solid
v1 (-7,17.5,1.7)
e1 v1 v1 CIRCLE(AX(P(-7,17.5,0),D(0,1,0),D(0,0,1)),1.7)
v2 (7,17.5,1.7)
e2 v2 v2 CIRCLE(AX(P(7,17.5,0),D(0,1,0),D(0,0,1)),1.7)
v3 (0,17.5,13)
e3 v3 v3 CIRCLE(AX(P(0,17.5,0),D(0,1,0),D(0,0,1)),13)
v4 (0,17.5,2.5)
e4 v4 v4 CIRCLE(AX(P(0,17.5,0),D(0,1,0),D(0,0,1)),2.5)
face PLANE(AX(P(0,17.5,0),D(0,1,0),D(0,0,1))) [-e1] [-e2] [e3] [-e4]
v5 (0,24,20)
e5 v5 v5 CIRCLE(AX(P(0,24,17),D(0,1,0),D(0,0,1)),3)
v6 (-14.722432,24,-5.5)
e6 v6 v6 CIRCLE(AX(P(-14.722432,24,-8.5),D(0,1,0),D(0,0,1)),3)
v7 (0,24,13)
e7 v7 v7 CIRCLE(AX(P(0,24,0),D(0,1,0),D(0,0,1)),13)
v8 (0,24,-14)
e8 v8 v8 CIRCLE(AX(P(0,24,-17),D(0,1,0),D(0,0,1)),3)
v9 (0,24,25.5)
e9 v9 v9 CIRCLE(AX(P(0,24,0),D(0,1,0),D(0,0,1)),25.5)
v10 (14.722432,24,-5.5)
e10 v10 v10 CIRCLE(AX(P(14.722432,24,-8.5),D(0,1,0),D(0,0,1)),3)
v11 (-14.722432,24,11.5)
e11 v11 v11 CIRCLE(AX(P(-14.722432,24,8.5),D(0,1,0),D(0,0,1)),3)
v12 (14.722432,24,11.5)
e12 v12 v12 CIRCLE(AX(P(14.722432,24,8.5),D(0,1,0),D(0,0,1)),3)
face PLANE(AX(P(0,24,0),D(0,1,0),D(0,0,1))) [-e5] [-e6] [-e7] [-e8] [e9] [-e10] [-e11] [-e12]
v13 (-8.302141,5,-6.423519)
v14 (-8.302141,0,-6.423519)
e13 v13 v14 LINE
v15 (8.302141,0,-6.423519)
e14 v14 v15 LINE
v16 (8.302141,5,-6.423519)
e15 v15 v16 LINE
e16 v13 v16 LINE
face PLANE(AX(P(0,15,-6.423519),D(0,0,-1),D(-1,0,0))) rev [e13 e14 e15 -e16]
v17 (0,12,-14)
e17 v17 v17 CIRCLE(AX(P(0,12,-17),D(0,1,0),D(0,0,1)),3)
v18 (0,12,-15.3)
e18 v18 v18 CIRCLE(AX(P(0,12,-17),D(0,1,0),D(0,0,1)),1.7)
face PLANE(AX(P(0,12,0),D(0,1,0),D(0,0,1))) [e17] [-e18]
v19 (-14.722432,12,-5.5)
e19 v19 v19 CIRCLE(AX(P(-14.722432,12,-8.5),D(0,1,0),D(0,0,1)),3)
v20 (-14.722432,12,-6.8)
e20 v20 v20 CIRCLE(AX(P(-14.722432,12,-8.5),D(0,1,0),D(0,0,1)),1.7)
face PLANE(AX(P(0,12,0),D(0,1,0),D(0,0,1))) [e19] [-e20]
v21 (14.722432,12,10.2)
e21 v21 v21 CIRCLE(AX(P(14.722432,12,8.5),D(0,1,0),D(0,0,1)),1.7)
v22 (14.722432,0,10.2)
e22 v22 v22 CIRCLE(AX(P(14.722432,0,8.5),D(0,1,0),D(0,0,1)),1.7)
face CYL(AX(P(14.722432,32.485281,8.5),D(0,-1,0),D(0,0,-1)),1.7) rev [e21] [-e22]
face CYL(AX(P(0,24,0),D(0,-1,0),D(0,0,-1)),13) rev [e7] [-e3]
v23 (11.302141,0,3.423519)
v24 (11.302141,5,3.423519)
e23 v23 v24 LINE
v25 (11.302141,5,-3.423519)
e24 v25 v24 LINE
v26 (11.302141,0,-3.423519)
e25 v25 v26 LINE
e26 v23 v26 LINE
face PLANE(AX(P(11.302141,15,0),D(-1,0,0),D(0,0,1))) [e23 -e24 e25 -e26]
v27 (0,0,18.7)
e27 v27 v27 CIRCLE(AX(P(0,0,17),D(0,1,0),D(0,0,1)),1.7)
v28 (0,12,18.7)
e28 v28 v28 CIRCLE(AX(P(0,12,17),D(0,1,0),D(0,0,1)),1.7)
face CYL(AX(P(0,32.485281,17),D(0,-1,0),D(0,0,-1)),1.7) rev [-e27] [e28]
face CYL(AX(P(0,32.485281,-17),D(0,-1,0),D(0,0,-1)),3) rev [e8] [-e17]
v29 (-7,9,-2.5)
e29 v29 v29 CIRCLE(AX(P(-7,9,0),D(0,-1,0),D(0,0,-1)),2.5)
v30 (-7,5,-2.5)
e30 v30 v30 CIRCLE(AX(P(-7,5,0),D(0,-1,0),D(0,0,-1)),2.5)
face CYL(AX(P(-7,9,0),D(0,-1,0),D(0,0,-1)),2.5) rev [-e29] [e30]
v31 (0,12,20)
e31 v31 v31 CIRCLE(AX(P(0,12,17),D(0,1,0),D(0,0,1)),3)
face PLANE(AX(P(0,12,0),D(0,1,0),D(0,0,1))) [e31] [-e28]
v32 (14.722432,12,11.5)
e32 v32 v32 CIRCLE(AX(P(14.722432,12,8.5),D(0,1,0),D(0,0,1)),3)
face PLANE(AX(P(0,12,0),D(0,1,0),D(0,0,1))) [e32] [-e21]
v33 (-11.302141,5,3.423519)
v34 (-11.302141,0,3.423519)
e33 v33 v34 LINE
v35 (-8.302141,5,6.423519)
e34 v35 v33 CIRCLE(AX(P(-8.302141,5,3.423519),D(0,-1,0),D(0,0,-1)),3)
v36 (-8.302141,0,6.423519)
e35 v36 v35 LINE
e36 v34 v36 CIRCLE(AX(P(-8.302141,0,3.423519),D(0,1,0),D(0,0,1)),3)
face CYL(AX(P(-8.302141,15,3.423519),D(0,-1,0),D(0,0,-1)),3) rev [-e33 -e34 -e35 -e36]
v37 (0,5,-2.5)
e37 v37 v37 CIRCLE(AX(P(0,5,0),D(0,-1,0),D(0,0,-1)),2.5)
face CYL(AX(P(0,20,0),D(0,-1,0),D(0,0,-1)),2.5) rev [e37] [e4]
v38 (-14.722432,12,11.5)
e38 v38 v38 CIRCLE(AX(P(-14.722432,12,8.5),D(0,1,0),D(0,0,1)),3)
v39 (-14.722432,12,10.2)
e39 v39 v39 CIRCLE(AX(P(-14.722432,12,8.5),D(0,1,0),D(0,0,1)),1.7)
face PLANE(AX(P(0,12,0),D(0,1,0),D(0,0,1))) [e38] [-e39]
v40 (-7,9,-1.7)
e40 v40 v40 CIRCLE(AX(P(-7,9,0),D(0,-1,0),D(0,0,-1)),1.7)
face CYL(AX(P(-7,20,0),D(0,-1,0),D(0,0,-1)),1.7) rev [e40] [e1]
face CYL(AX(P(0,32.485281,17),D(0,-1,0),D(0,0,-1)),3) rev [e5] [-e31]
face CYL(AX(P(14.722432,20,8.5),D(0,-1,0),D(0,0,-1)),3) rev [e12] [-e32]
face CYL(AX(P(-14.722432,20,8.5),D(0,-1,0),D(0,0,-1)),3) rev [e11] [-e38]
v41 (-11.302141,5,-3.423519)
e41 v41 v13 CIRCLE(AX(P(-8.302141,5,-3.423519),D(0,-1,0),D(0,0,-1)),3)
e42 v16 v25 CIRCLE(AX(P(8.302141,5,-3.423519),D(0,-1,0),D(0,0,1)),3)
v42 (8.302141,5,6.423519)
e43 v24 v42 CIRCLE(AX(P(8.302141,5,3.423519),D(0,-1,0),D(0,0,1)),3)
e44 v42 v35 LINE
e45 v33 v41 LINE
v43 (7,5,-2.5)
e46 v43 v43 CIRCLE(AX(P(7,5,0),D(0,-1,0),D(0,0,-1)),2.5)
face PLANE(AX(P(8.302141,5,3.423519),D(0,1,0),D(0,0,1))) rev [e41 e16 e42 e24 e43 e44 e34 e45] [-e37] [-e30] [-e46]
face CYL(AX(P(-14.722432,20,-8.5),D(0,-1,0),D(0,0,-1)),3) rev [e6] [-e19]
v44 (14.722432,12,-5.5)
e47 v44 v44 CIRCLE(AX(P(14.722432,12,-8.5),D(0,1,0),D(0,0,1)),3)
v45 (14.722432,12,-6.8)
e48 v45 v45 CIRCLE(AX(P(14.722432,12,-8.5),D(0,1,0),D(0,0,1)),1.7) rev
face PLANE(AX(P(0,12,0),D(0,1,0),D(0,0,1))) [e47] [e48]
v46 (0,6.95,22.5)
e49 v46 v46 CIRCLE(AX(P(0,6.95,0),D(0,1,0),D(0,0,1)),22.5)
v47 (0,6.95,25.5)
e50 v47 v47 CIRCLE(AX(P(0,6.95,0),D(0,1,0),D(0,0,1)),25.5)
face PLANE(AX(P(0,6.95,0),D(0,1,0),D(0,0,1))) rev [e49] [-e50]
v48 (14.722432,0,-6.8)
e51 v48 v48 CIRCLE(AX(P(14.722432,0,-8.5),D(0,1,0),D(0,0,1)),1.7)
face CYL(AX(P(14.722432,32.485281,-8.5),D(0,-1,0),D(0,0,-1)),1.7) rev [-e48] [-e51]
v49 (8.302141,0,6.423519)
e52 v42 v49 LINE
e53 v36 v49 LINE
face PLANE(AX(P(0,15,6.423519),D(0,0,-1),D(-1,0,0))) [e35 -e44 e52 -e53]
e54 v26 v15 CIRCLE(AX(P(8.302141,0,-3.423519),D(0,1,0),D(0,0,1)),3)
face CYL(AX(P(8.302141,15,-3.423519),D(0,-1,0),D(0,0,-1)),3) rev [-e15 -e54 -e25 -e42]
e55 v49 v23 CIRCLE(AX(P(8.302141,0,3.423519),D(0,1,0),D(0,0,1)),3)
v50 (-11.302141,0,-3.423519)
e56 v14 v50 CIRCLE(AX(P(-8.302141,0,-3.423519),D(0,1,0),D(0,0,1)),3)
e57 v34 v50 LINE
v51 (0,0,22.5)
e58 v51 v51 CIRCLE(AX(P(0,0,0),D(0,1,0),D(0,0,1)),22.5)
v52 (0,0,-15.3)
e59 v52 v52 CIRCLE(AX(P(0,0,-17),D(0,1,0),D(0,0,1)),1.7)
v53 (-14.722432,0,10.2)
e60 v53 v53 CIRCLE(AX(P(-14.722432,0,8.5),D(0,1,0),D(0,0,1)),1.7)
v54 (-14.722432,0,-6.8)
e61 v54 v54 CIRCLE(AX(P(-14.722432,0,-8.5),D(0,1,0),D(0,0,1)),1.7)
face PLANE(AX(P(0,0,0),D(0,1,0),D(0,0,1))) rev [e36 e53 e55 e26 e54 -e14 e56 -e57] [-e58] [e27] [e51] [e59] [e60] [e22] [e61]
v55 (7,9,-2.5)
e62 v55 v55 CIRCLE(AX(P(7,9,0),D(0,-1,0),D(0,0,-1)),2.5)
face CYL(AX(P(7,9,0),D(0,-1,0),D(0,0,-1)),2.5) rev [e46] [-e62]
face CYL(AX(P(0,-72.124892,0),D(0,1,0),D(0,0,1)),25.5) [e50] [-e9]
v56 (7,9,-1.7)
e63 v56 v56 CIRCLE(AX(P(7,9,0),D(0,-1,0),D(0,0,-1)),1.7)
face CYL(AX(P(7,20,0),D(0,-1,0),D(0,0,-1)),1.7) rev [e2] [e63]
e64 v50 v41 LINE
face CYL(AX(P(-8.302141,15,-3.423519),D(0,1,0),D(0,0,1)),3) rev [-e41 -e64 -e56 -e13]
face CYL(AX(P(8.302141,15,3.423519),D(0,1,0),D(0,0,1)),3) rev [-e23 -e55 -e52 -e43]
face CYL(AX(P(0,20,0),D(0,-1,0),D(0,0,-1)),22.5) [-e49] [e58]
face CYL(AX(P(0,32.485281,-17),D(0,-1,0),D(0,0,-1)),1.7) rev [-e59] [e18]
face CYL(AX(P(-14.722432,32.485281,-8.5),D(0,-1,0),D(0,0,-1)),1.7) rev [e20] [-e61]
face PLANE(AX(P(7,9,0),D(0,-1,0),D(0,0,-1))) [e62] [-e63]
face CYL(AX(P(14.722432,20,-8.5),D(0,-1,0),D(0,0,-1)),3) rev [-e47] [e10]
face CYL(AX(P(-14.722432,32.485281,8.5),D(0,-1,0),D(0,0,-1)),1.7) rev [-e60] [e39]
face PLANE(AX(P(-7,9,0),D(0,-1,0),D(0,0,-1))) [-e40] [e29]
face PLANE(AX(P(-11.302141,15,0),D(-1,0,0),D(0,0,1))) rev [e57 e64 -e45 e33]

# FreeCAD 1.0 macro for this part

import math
import FreeCAD as App
import Part
import Sketcher


def edges_at(feature, points):
    """Names of the edges that pass closest to the given points."""
    edges = feature.Shape.Edges
    near = lambda p: min(range(len(edges)), key=lambda i: edges[i].distToShape(Part.Vertex(*p))[0])
    return sorted({f"Edge{near(p) + 1}" for p in points})

doc = App.newDocument("Part")
params = doc.addObject("Spreadsheet::Sheet", "Params")
for row, (alias, value) in enumerate([
    ("sketch1_diameter", "45 mm"),
    ("sketch1_diameter2", "6 mm"),
    ("sketch1_diameter3", "3.4 mm"),
    ("pad1_length", "20 mm"),
    ("sketch2_diameter", "45 mm"),
    ("sketch2_diameter2", "6 mm"),
    ("sketch2_diameter3", "26 mm"),
    ("sketch2_diameter4", "3.4 mm"),
    ("pad2_length", "24 mm"),
    ("pocket1_length", "20 mm"),
    ("sketch4_diameter", "5 mm"),
    ("sketch4_diameter2", "3.4 mm"),
    ("pad3_length", "20 mm"),
    ("sketch5_diameter", "5 mm"),
    ("sketch5_diameter2", "3.4 mm"),
    ("pocket2_length", "15 mm"),
    ("fillet_radius", "3 mm"),
    ("sketch6_diameter", "6 mm"),
    ("pocket3_length", "24 mm"),
    ("sketch7_diameter", "26 mm"),
    ("pocket4_length", "2.5 mm"),
    ("sketch8_diameter", "6 mm"),
    ("sketch8_diameter2", "3.4 mm"),
    ("pad4_length", "10 mm"),
    ("sketch9_diameter", "51 mm"),
    ("sketch9_diameter2", "45 mm"),
    ("pad5_length", "14 mm"),
    ("sketch10_diameter", "6 mm"),
    ("sketch10_diameter2", "3.4 mm"),
    ("pad6_length", "2 mm"),
    ("sketch11_diameter", "5 mm"),
    ("sketch11_radius", "3 mm"),
    ("sketch11_diameter2", "3.4 mm"),
    ("pad7_length", "10 mm"),
    ("sketch12_diameter", "5 mm"),
    ("sketch12_diameter2", "3.4 mm"),
    ("pocket5_length", "4 mm"),
    ("sketch13_diameter", "51 mm"),
    ("sketch13_diameter2", "45 mm"),
    ("pad8_length", "3.05 mm"),
], start=1):
    params.set(f"A{row}", alias)
    params.set(f"B{row}", "=" + value)
    params.setAlias(f"B{row}", alias)

body = doc.addObject("PartDesign::Body", "Body")

# Sketch on XZ plane
sketch1 = body.newObject("Sketcher::SketchObject", "Sketch")
sketch1.AttachmentSupport = (doc.getObject("XZ_Plane"), [""])
sketch1.MapMode = "FlatFace"
sketch1.addGeometry([
    Part.Circle(App.Vector(0, 0, 0), App.Vector(0, 0, 1), 22.5),  # 0
    Part.Circle(App.Vector(-14.7, -8.5, 0), App.Vector(0, 0, 1), 3),  # 1
    Part.Circle(App.Vector(0, -17, 0), App.Vector(0, 0, 1), 1.7),  # 2
    Part.Circle(App.Vector(-14.7, 8.5, 0), App.Vector(0, 0, 1), 3),  # 3
    Part.Circle(App.Vector(-7, 0, 0), App.Vector(0, 0, 1), 1.7),  # 4
    Part.Circle(App.Vector(7, 0, 0), App.Vector(0, 0, 1), 1.7),  # 5
    Part.Circle(App.Vector(14.7, -8.5, 0), App.Vector(0, 0, 1), 3),  # 6
    Part.Circle(App.Vector(0, 17, 0), App.Vector(0, 0, 1), 1.7),  # 7
    Part.Circle(App.Vector(14.7, 8.5, 0), App.Vector(0, 0, 1), 3),  # 8
], False)
sketch1.addConstraint([
    Sketcher.Constraint("Coincident", 0, 3, -1, 1),
    Sketcher.Constraint("Equal", 1, 3),
    Sketcher.Constraint("Equal", 2, 4),
    Sketcher.Constraint("Equal", 4, 5),
    Sketcher.Constraint("Equal", 3, 6),
    Sketcher.Constraint("Equal", 5, 7),
    Sketcher.Constraint("Equal", 6, 8),
    Sketcher.Constraint("Symmetric", 4, 3, 5, 3, -1, 1),
    Sketcher.Constraint("Symmetric", 3, 3, 6, 3, -1, 1),
    Sketcher.Constraint("Symmetric", 2, 3, 7, 3, -1, 1),
    Sketcher.Constraint("Symmetric", 1, 3, 8, 3, -1, 1),
    Sketcher.Constraint("Symmetric", 1, 3, 6, 3, -2),
    Sketcher.Constraint("PointOnObject", 2, 3, -2),
    Sketcher.Constraint("PointOnObject", 4, 3, -1),
    Sketcher.Constraint("Diameter", 0, 45.0),
    Sketcher.Constraint("Diameter", 1, 6.0),
    Sketcher.Constraint("Diameter", 2, 3.4),
    Sketcher.Constraint("DistanceY", 2, 3, -1, 1, 17.0),
    Sketcher.Constraint("DistanceX", 4, 3, -1, 1, 7.0),
    Sketcher.Constraint("DistanceY", 1, 3, 3, 3, 17.0),
    Sketcher.Constraint("DistanceX", 1, 3, -1, 1, 14.722432),
])
sketch1.setExpression("Constraints[14]", "Params.sketch1_diameter")
sketch1.setExpression("Constraints[15]", "Params.sketch1_diameter2")
sketch1.setExpression("Constraints[16]", "Params.sketch1_diameter3")
pad1 = body.newObject("PartDesign::Pad", "Pad")
pad1.Profile = sketch1
pad1.setExpression("Length", "Params.pad1_length")
pad1.Reversed = True

# Sketch on XZ plane
sketch2 = body.newObject("Sketcher::SketchObject", "Sketch001")
sketch2.AttachmentSupport = (doc.getObject("XZ_Plane"), [""])
sketch2.MapMode = "FlatFace"
sketch2.addGeometry([
    Part.Circle(App.Vector(0, 0, 0), App.Vector(0, 0, 1), 22.5),  # 0
    Part.Circle(App.Vector(-14.7, -8.5, 0), App.Vector(0, 0, 1), 3),  # 1
    Part.Circle(App.Vector(0, -17, 0), App.Vector(0, 0, 1), 1.7),  # 2
    Part.Circle(App.Vector(-14.7, 8.5, 0), App.Vector(0, 0, 1), 3),  # 3
    Part.Circle(App.Vector(14.7, -8.5, 0), App.Vector(0, 0, 1), 3),  # 4
    Part.Circle(App.Vector(0, 0, 0), App.Vector(0, 0, 1), 13),  # 5
    Part.Circle(App.Vector(0, 17, 0), App.Vector(0, 0, 1), 1.7),  # 6
    Part.Circle(App.Vector(14.7, 8.5, 0), App.Vector(0, 0, 1), 3),  # 7
], False)
sketch2.addConstraint([
    Sketcher.Constraint("Coincident", 0, 3, -1, 1),
    Sketcher.Constraint("Coincident", 5, 3, -1, 1),
    Sketcher.Constraint("Equal", 1, 3),
    Sketcher.Constraint("Equal", 3, 4),
    Sketcher.Constraint("Equal", 2, 6),
    Sketcher.Constraint("Equal", 4, 7),
    Sketcher.Constraint("Symmetric", 3, 3, 4, 3, -1, 1),
    Sketcher.Constraint("Symmetric", 2, 3, 6, 3, -1, 1),
    Sketcher.Constraint("Symmetric", 1, 3, 7, 3, -1, 1),
    Sketcher.Constraint("Symmetric", 1, 3, 4, 3, -2),
    Sketcher.Constraint("PointOnObject", 2, 3, -2),
    Sketcher.Constraint("Diameter", 0, 45.0),
    Sketcher.Constraint("Diameter", 1, 6.0),
    Sketcher.Constraint("Diameter", 5, 26.0),
    Sketcher.Constraint("Diameter", 2, 3.4),
    Sketcher.Constraint("DistanceY", 2, 3, -1, 1, 17.0),
    Sketcher.Constraint("DistanceY", 1, 3, 3, 3, 17.0),
    Sketcher.Constraint("DistanceX", 1, 3, -1, 1, 14.722432),
])
sketch2.setExpression("Constraints[11]", "Params.sketch2_diameter")
sketch2.setExpression("Constraints[12]", "Params.sketch2_diameter2")
sketch2.setExpression("Constraints[13]", "Params.sketch2_diameter3")
sketch2.setExpression("Constraints[14]", "Params.sketch2_diameter4")
pad2 = body.newObject("PartDesign::Pad", "Pad001")
pad2.Profile = sketch2
pad2.setExpression("Length", "Params.pad2_length")
pad2.Reversed = True

# Sketch on XZ plane
sketch3 = body.newObject("Sketcher::SketchObject", "Sketch002")
sketch3.AttachmentSupport = (doc.getObject("XZ_Plane"), [""])
sketch3.MapMode = "FlatFace"
sketch3.addGeometry([
    Part.LineSegment(App.Vector(-11, -6, 0), App.Vector(-11, 6, 0)),
    Part.LineSegment(App.Vector(-11, 6, 0), App.Vector(11, 6, 0)),
    Part.LineSegment(App.Vector(11, 6, 0), App.Vector(11, -6, 0)),
    Part.LineSegment(App.Vector(11, -6, 0), App.Vector(-11, -6, 0)),
], False)
sketch3.addConstraint([
    Sketcher.Constraint("Coincident", 0, 2, 1, 1),
    Sketcher.Constraint("Coincident", 1, 2, 2, 1),
    Sketcher.Constraint("Coincident", 2, 2, 3, 1),
    Sketcher.Constraint("Coincident", 3, 2, 0, 1),
    Sketcher.Constraint("Vertical", 0),
    Sketcher.Constraint("Horizontal", 1),
    Sketcher.Constraint("Vertical", 2),
    Sketcher.Constraint("Horizontal", 3),
    Sketcher.Constraint("Symmetric", 0, 2, 2, 2, -1, 1),
    Sketcher.Constraint("DistanceY", 0, 1, 0, 2, 12.847038),
    Sketcher.Constraint("DistanceX", 1, 1, 1, 2, 22.604283),
])
pocket1 = body.newObject("PartDesign::Pocket", "Pocket")
pocket1.Profile = sketch3
pocket1.setExpression("Length", "Params.pocket1_length")

# Sketch on XZ plane
sketch4 = body.newObject("Sketcher::SketchObject", "Sketch003")
sketch4.AttachmentSupport = (doc.getObject("XZ_Plane"), [""])
sketch4.MapMode = "FlatFace"
sketch4.addGeometry([
    Part.LineSegment(App.Vector(-11.3, -6.4, 0), App.Vector(-11.3, 6.4, 0)),  # 0
    Part.LineSegment(App.Vector(-11.3, 6.4, 0), App.Vector(11.3, 6.4, 0)),  # 1
    Part.LineSegment(App.Vector(11.3, 6.4, 0), App.Vector(11.3, -6.4, 0)),  # 2
    Part.LineSegment(App.Vector(11.3, -6.4, 0), App.Vector(-11.3, -6.4, 0)),  # 3
    Part.Circle(App.Vector(-7, 0, 0), App.Vector(0, 0, 1), 1.7),  # 4
    Part.Circle(App.Vector(0, 0, 0), App.Vector(0, 0, 1), 2.5),  # 5
    Part.Circle(App.Vector(7, 0, 0), App.Vector(0, 0, 1), 1.7),  # 6
], False)
sketch4.addConstraint([
    Sketcher.Constraint("Coincident", 0, 2, 1, 1),
    Sketcher.Constraint("Coincident", 1, 2, 2, 1),
    Sketcher.Constraint("Coincident", 2, 2, 3, 1),
    Sketcher.Constraint("Coincident", 3, 2, 0, 1),
    Sketcher.Constraint("Vertical", 0),
    Sketcher.Constraint("Horizontal", 1),
    Sketcher.Constraint("Vertical", 2),
    Sketcher.Constraint("Horizontal", 3),
    Sketcher.Constraint("Coincident", 5, 3, -1, 1),
    Sketcher.Constraint("Equal", 4, 6),
    Sketcher.Constraint("Symmetric", 4, 3, 6, 3, -1, 1),
    Sketcher.Constraint("Symmetric", 0, 2, 2, 2, -1, 1),
    Sketcher.Constraint("PointOnObject", 4, 3, -1),
    Sketcher.Constraint("Diameter", 5, 5.0),
    Sketcher.Constraint("Diameter", 4, 3.4),
    Sketcher.Constraint("DistanceX", 4, 3, -1, 1, 7.0),
    Sketcher.Constraint("DistanceY", 0, 1, 0, 2, 12.847038),
    Sketcher.Constraint("DistanceX", 1, 1, 1, 2, 22.604283),
])
sketch4.setExpression("Constraints[13]", "Params.sketch4_diameter")
sketch4.setExpression("Constraints[14]", "Params.sketch4_diameter2")
pad3 = body.newObject("PartDesign::Pad", "Pad002")
pad3.Profile = sketch4
pad3.setExpression("Length", "Params.pad3_length")
pad3.Reversed = True

# Sketch on XZ plane
sketch5 = body.newObject("Sketcher::SketchObject", "Sketch004")
sketch5.AttachmentSupport = (doc.getObject("XZ_Plane"), [""])
sketch5.MapMode = "FlatFace"
sketch5.addGeometry([
    Part.LineSegment(App.Vector(-11.3, -6.4, 0), App.Vector(-11.3, 6.4, 0)),  # 0
    Part.LineSegment(App.Vector(-11.3, 6.4, 0), App.Vector(11.3, 6.4, 0)),  # 1
    Part.LineSegment(App.Vector(11.3, 6.4, 0), App.Vector(11.3, -6.4, 0)),  # 2
    Part.LineSegment(App.Vector(11.3, -6.4, 0), App.Vector(-11.3, -6.4, 0)),  # 3
    Part.Circle(App.Vector(-7, 0, 0), App.Vector(0, 0, 1), 1.7),  # 4
    Part.Circle(App.Vector(0, 0, 0), App.Vector(0, 0, 1), 2.5),  # 5
    Part.Circle(App.Vector(7, 0, 0), App.Vector(0, 0, 1), 1.7),  # 6
], False)
sketch5.addConstraint([
    Sketcher.Constraint("Coincident", 0, 2, 1, 1),
    Sketcher.Constraint("Coincident", 1, 2, 2, 1),
    Sketcher.Constraint("Coincident", 2, 2, 3, 1),
    Sketcher.Constraint("Coincident", 3, 2, 0, 1),
    Sketcher.Constraint("Vertical", 0),
    Sketcher.Constraint("Horizontal", 1),
    Sketcher.Constraint("Vertical", 2),
    Sketcher.Constraint("Horizontal", 3),
    Sketcher.Constraint("Coincident", 5, 3, -1, 1),
    Sketcher.Constraint("Equal", 4, 6),
    Sketcher.Constraint("Symmetric", 4, 3, 6, 3, -1, 1),
    Sketcher.Constraint("Symmetric", 0, 2, 2, 2, -1, 1),
    Sketcher.Constraint("PointOnObject", 4, 3, -1),
    Sketcher.Constraint("Diameter", 5, 5.0),
    Sketcher.Constraint("Diameter", 4, 3.4),
    Sketcher.Constraint("DistanceX", 4, 3, -1, 1, 7.0),
    Sketcher.Constraint("DistanceY", 0, 1, 0, 2, 12.847038),
    Sketcher.Constraint("DistanceX", 1, 1, 1, 2, 22.604283),
])
sketch5.setExpression("Constraints[13]", "Params.sketch5_diameter")
sketch5.setExpression("Constraints[14]", "Params.sketch5_diameter2")
pocket2 = body.newObject("PartDesign::Pocket", "Pocket001")
pocket2.Profile = sketch5
pocket2.setExpression("Length", "Params.pocket2_length")
doc.recompute()

fillet = body.newObject("PartDesign::Fillet", "Fillet")
fillet.Base = (pocket2, edges_at(pocket2, [
    (-11.302, 7.5, 6.424),
    (11.302, 7.5, 6.424),
    (11.302, 7.5, -6.424),
    (-11.302, 7.5, -6.424),
]))
fillet.setExpression("Radius", "Params.fillet_radius")

# Sketch on XZ plane
sketch6 = body.newObject("Sketcher::SketchObject", "Sketch005")
sketch6.AttachmentSupport = (doc.getObject("XZ_Plane"), [""])
sketch6.MapMode = "FlatFace"
sketch6.addGeometry([
    Part.Circle(App.Vector(0, -17, 0), App.Vector(0, 0, 1), 3),
    Part.Circle(App.Vector(0, 17, 0), App.Vector(0, 0, 1), 3),
], False)
sketch6.addConstraint([
    Sketcher.Constraint("Equal", 0, 1),
    Sketcher.Constraint("Symmetric", 0, 3, 1, 3, -1, 1),
    Sketcher.Constraint("PointOnObject", 0, 3, -2),
    Sketcher.Constraint("Diameter", 0, 6.0),
    Sketcher.Constraint("DistanceY", 0, 3, -1, 1, 17.0),
])
sketch6.setExpression("Constraints[3]", "Params.sketch6_diameter")
pocket3 = body.newObject("PartDesign::Pocket", "Pocket002")
pocket3.Profile = sketch6
pocket3.setExpression("Length", "Params.pocket3_length")

# Sketch on XZ plane
sketch7 = body.newObject("Sketcher::SketchObject", "Sketch006")
sketch7.AttachmentSupport = (doc.getObject("XZ_Plane"), [""])
sketch7.MapMode = "FlatFace"
sketch7.AttachmentOffset = App.Placement(App.Vector(0, 0, -17.5), App.Rotation())
sketch7.addGeometry(Part.Circle(App.Vector(0, 0, 0), App.Vector(0, 0, 1), 13), False)
sketch7.addConstraint([
    Sketcher.Constraint("Coincident", 0, 3, -1, 1),
    Sketcher.Constraint("Diameter", 0, 26.0),
])
sketch7.setExpression("Constraints[1]", "Params.sketch7_diameter")
pocket4 = body.newObject("PartDesign::Pocket", "Pocket003")
pocket4.Profile = sketch7
pocket4.setExpression("Length", "Params.pocket4_length")

# Sketch on XZ plane
sketch8 = body.newObject("Sketcher::SketchObject", "Sketch007")
sketch8.AttachmentSupport = (doc.getObject("XZ_Plane"), [""])
sketch8.MapMode = "FlatFace"
sketch8.addGeometry([
    Part.Circle(App.Vector(-14.7, 8.5, 0), App.Vector(0, 0, 1), 3),  # 0
    Part.Circle(App.Vector(-14.7, 8.5, 0), App.Vector(0, 0, 1), 1.7),  # 1
    Part.Circle(App.Vector(-14.7, -8.5, 0), App.Vector(0, 0, 1), 3),  # 2
    Part.Circle(App.Vector(-14.7, -8.5, 0), App.Vector(0, 0, 1), 1.7),  # 3
    Part.Circle(App.Vector(14.7, -8.5, 0), App.Vector(0, 0, 1), 3),  # 4
    Part.Circle(App.Vector(14.7, -8.5, 0), App.Vector(0, 0, 1), 1.7),  # 5
    Part.Circle(App.Vector(14.7, 8.5, 0), App.Vector(0, 0, 1), 3),  # 6
    Part.Circle(App.Vector(14.7, 8.5, 0), App.Vector(0, 0, 1), 1.7),  # 7
    Part.Circle(App.Vector(0, -17, 0), App.Vector(0, 0, 1), 3),  # 8
    Part.Circle(App.Vector(0, -17, 0), App.Vector(0, 0, 1), 1.7),  # 9
    Part.Circle(App.Vector(0, 17, 0), App.Vector(0, 0, 1), 3),  # 10
    Part.Circle(App.Vector(0, 17, 0), App.Vector(0, 0, 1), 1.7),  # 11
], False)
sketch8.addConstraint([
    Sketcher.Constraint("Coincident", 1, 3, 0, 3),
    Sketcher.Constraint("Coincident", 3, 3, 2, 3),
    Sketcher.Constraint("Coincident", 5, 3, 4, 3),
    Sketcher.Constraint("Coincident", 7, 3, 6, 3),
    Sketcher.Constraint("Coincident", 9, 3, 8, 3),
    Sketcher.Constraint("Coincident", 11, 3, 10, 3),
    Sketcher.Constraint("Equal", 0, 2),
    Sketcher.Constraint("Equal", 1, 3),
    Sketcher.Constraint("Equal", 2, 4),
    Sketcher.Constraint("Equal", 3, 5),
    Sketcher.Constraint("Equal", 4, 6),
    Sketcher.Constraint("Equal", 5, 7),
    Sketcher.Constraint("Equal", 6, 8),
    Sketcher.Constraint("Equal", 7, 9),
    Sketcher.Constraint("Equal", 8, 10),
    Sketcher.Constraint("Equal", 9, 11),
    Sketcher.Constraint("Symmetric", 0, 3, 4, 3, -1, 1),
    Sketcher.Constraint("Symmetric", 2, 3, 6, 3, -1, 1),
    Sketcher.Constraint("Symmetric", 8, 3, 10, 3, -1, 1),
    Sketcher.Constraint("Symmetric", 2, 3, 4, 3, -2),
    Sketcher.Constraint("PointOnObject", 8, 3, -2),
    Sketcher.Constraint("Diameter", 0, 6.0),
    Sketcher.Constraint("Diameter", 1, 3.4),
    Sketcher.Constraint("DistanceY", 8, 3, -1, 1, 17.0),
    Sketcher.Constraint("DistanceY", 2, 3, 0, 3, 17.0),
    Sketcher.Constraint("DistanceX", 0, 3, -1, 1, 14.722432),
])
sketch8.setExpression("Constraints[21]", "Params.sketch8_diameter")
sketch8.setExpression("Constraints[22]", "Params.sketch8_diameter2")
pad4 = body.newObject("PartDesign::Pad", "Pad003")
pad4.Profile = sketch8
pad4.setExpression("Length", "Params.pad4_length")
pad4.Reversed = True

# Sketch on XZ plane
sketch9 = body.newObject("Sketcher::SketchObject", "Sketch008")
sketch9.AttachmentSupport = (doc.getObject("XZ_Plane"), [""])
sketch9.MapMode = "FlatFace"
sketch9.AttachmentOffset = App.Placement(App.Vector(0, 0, -10), App.Rotation())
sketch9.addGeometry([
    Part.Circle(App.Vector(0, 0, 0), App.Vector(0, 0, 1), 26),
    Part.Circle(App.Vector(0, 0, 0), App.Vector(0, 0, 1), 22),
], False)
sketch9.addConstraint([
    Sketcher.Constraint("Coincident", 0, 3, -1, 1),
    Sketcher.Constraint("Coincident", 1, 3, -1, 1),
    Sketcher.Constraint("Diameter", 0, 51.0),
    Sketcher.Constraint("Diameter", 1, 45.0),
])
sketch9.setExpression("Constraints[2]", "Params.sketch9_diameter")
sketch9.setExpression("Constraints[3]", "Params.sketch9_diameter2")
pad5 = body.newObject("PartDesign::Pad", "Pad004")
pad5.Profile = sketch9
pad5.setExpression("Length", "Params.pad5_length")
pad5.Reversed = True

# Sketch on XZ plane
sketch10 = body.newObject("Sketcher::SketchObject", "Sketch009")
sketch10.AttachmentSupport = (doc.getObject("XZ_Plane"), [""])
sketch10.MapMode = "FlatFace"
sketch10.AttachmentOffset = App.Placement(App.Vector(0, 0, -10), App.Rotation())
sketch10.addGeometry([
    Part.Circle(App.Vector(-14.7, -8.5, 0), App.Vector(0, 0, 1), 3),  # 0
    Part.Circle(App.Vector(-14.7, -8.5, 0), App.Vector(0, 0, 1), 1.7),  # 1
    Part.Circle(App.Vector(0, -17, 0), App.Vector(0, 0, 1), 3),  # 2
    Part.Circle(App.Vector(0, -17, 0), App.Vector(0, 0, 1), 1.7),  # 3
    Part.Circle(App.Vector(14.7, -8.5, 0), App.Vector(0, 0, 1), 3),  # 4
    Part.Circle(App.Vector(14.7, -8.5, 0), App.Vector(0, 0, 1), 1.7),  # 5
    Part.Circle(App.Vector(14.7, 8.5, 0), App.Vector(0, 0, 1), 3),  # 6
    Part.Circle(App.Vector(14.7, 8.5, 0), App.Vector(0, 0, 1), 1.7),  # 7
    Part.Circle(App.Vector(0, 17, 0), App.Vector(0, 0, 1), 3),  # 8
    Part.Circle(App.Vector(0, 17, 0), App.Vector(0, 0, 1), 1.7),  # 9
    Part.Circle(App.Vector(-14.7, 8.5, 0), App.Vector(0, 0, 1), 3),  # 10
    Part.Circle(App.Vector(-14.7, 8.5, 0), App.Vector(0, 0, 1), 1.7),  # 11
], False)
sketch10.addConstraint([
    Sketcher.Constraint("Coincident", 1, 3, 0, 3),
    Sketcher.Constraint("Coincident", 3, 3, 2, 3),
    Sketcher.Constraint("Coincident", 5, 3, 4, 3),
    Sketcher.Constraint("Coincident", 7, 3, 6, 3),
    Sketcher.Constraint("Coincident", 9, 3, 8, 3),
    Sketcher.Constraint("Coincident", 11, 3, 10, 3),
    Sketcher.Constraint("Equal", 0, 2),
    Sketcher.Constraint("Equal", 1, 3),
    Sketcher.Constraint("Equal", 2, 4),
    Sketcher.Constraint("Equal", 3, 5),
    Sketcher.Constraint("Equal", 4, 6),
    Sketcher.Constraint("Equal", 5, 7),
    Sketcher.Constraint("Equal", 6, 8),
    Sketcher.Constraint("Equal", 7, 9),
    Sketcher.Constraint("Equal", 8, 10),
    Sketcher.Constraint("Equal", 9, 11),
    Sketcher.Constraint("Symmetric", 0, 3, 6, 3, -1, 1),
    Sketcher.Constraint("Symmetric", 2, 3, 8, 3, -1, 1),
    Sketcher.Constraint("Symmetric", 4, 3, 10, 3, -1, 1),
    Sketcher.Constraint("Symmetric", 0, 3, 4, 3, -2),
    Sketcher.Constraint("PointOnObject", 2, 3, -2),
    Sketcher.Constraint("Diameter", 0, 6.0),
    Sketcher.Constraint("Diameter", 1, 3.4),
    Sketcher.Constraint("DistanceY", 2, 3, -1, 1, 17.0),
    Sketcher.Constraint("DistanceY", 4, 3, 6, 3, 17.0),
    Sketcher.Constraint("DistanceX", 0, 3, -1, 1, 14.722432),
])
sketch10.setExpression("Constraints[21]", "Params.sketch10_diameter")
sketch10.setExpression("Constraints[22]", "Params.sketch10_diameter2")
pad6 = body.newObject("PartDesign::Pad", "Pad005")
pad6.Profile = sketch10
pad6.setExpression("Length", "Params.pad6_length")
pad6.Reversed = True

# Sketch on XZ plane
sketch11 = body.newObject("Sketcher::SketchObject", "Sketch010")
sketch11.AttachmentSupport = (doc.getObject("XZ_Plane"), [""])
sketch11.MapMode = "FlatFace"
sketch11.AttachmentOffset = App.Placement(App.Vector(0, 0, -15), App.Rotation())
sketch11.addGeometry([
    Part.LineSegment(App.Vector(11.3, -3.4, 0), App.Vector(11.3, 3.4, 0)),  # 0
    Part.ArcOfCircle(Part.Circle(App.Vector(8.3, 3.4, 0), App.Vector(0, 0, 1), 3), math.radians(0), math.radians(90)),  # 1
    Part.LineSegment(App.Vector(8.3, 6.4, 0), App.Vector(-8.3, 6.4, 0)),  # 2
    Part.ArcOfCircle(Part.Circle(App.Vector(-8.3, 3.4, 0), App.Vector(0, 0, 1), 3), math.radians(90), math.radians(180)),  # 3
    Part.LineSegment(App.Vector(-11.3, 3.4, 0), App.Vector(-11.3, -3.4, 0)),  # 4
    Part.ArcOfCircle(Part.Circle(App.Vector(-8.3, -3.4, 0), App.Vector(0, 0, 1), 3), math.radians(180), math.radians(270)),  # 5
    Part.LineSegment(App.Vector(-8.3, -6.4, 0), App.Vector(8.3, -6.4, 0)),  # 6
    Part.ArcOfCircle(Part.Circle(App.Vector(8.3, -3.4, 0), App.Vector(0, 0, 1), 3), math.radians(-90), math.radians(0)),  # 7
    Part.Circle(App.Vector(7, 0, 0), App.Vector(0, 0, 1), 1.7),  # 8
    Part.Circle(App.Vector(0, 0, 0), App.Vector(0, 0, 1), 2.5),  # 9
    Part.Circle(App.Vector(-7, 0, 0), App.Vector(0, 0, 1), 1.7),  # 10
], False)
sketch11.addConstraint([
    Sketcher.Constraint("Tangent", 0, 2, 1, 1),
    Sketcher.Constraint("Tangent", 1, 2, 2, 1),
    Sketcher.Constraint("Tangent", 2, 2, 3, 1),
    Sketcher.Constraint("Tangent", 3, 2, 4, 1),
    Sketcher.Constraint("Tangent", 4, 2, 5, 1),
    Sketcher.Constraint("Tangent", 5, 2, 6, 1),
    Sketcher.Constraint("Tangent", 6, 2, 7, 1),
    Sketcher.Constraint("Tangent", 7, 2, 0, 1),
    Sketcher.Constraint("Vertical", 0),
    Sketcher.Constraint("Horizontal", 2),
    Sketcher.Constraint("Vertical", 4),
    Sketcher.Constraint("Horizontal", 6),
    Sketcher.Constraint("Coincident", 9, 3, -1, 1),
    Sketcher.Constraint("Equal", 1, 3),
    Sketcher.Constraint("Equal", 3, 5),
    Sketcher.Constraint("Equal", 5, 7),
    Sketcher.Constraint("Equal", 8, 10),
    Sketcher.Constraint("Symmetric", 1, 3, 5, 3, -1, 1),
    Sketcher.Constraint("Symmetric", 8, 3, 10, 3, -1, 1),
    Sketcher.Constraint("PointOnObject", 8, 3, -1),
    Sketcher.Constraint("Diameter", 9, 5.0),
    Sketcher.Constraint("Radius", 1, 3.0),
    Sketcher.Constraint("Diameter", 8, 3.4),
    Sketcher.Constraint("DistanceX", -1, 1, 8, 3, 7.0),
    Sketcher.Constraint("DistanceY", 0, 1, 0, 2, 6.847038),
    Sketcher.Constraint("DistanceX", 2, 2, 2, 1, 16.604283),
])
sketch11.setExpression("Constraints[20]", "Params.sketch11_diameter")
sketch11.setExpression("Constraints[21]", "Params.sketch11_radius")
sketch11.setExpression("Constraints[22]", "Params.sketch11_diameter2")
pad7 = body.newObject("PartDesign::Pad", "Pad006")
pad7.Profile = sketch11
pad7.setExpression("Length", "Params.pad7_length")

# Sketch on XZ plane
sketch12 = body.newObject("Sketcher::SketchObject", "Sketch011")
sketch12.AttachmentSupport = (doc.getObject("XZ_Plane"), [""])
sketch12.MapMode = "FlatFace"
sketch12.AttachmentOffset = App.Placement(App.Vector(0, 0, -5), App.Rotation())
sketch12.addGeometry([
    Part.Circle(App.Vector(-7, 0, 0), App.Vector(0, 0, 1), 2.5),
    Part.Circle(App.Vector(-7, 0, 0), App.Vector(0, 0, 1), 1.7),
    Part.Circle(App.Vector(7, 0, 0), App.Vector(0, 0, 1), 2.5),
    Part.Circle(App.Vector(7, 0, 0), App.Vector(0, 0, 1), 1.7),
], False)
sketch12.addConstraint([
    Sketcher.Constraint("Coincident", 1, 3, 0, 3),
    Sketcher.Constraint("Coincident", 3, 3, 2, 3),
    Sketcher.Constraint("Equal", 0, 2),
    Sketcher.Constraint("Equal", 1, 3),
    Sketcher.Constraint("Symmetric", 0, 3, 2, 3, -1, 1),
    Sketcher.Constraint("PointOnObject", 0, 3, -1),
    Sketcher.Constraint("Diameter", 0, 5.0),
    Sketcher.Constraint("Diameter", 1, 3.4),
    Sketcher.Constraint("DistanceX", 0, 3, -1, 1, 7.0),
])
sketch12.setExpression("Constraints[6]", "Params.sketch12_diameter")
sketch12.setExpression("Constraints[7]", "Params.sketch12_diameter2")
pocket5 = body.newObject("PartDesign::Pocket", "Pocket004")
pocket5.Profile = sketch12
pocket5.setExpression("Length", "Params.pocket5_length")

# Sketch on XZ plane
sketch13 = body.newObject("Sketcher::SketchObject", "Sketch012")
sketch13.AttachmentSupport = (doc.getObject("XZ_Plane"), [""])
sketch13.MapMode = "FlatFace"
sketch13.AttachmentOffset = App.Placement(App.Vector(0, 0, -6.95), App.Rotation())
sketch13.addGeometry([
    Part.Circle(App.Vector(0, 0, 0), App.Vector(0, 0, 1), 26),
    Part.Circle(App.Vector(0, 0, 0), App.Vector(0, 0, 1), 22),
], False)
sketch13.addConstraint([
    Sketcher.Constraint("Coincident", 0, 3, -1, 1),
    Sketcher.Constraint("Coincident", 1, 3, -1, 1),
    Sketcher.Constraint("Diameter", 0, 51.0),
    Sketcher.Constraint("Diameter", 1, 45.0),
])
sketch13.setExpression("Constraints[2]", "Params.sketch13_diameter")
sketch13.setExpression("Constraints[3]", "Params.sketch13_diameter2")
pad8 = body.newObject("PartDesign::Pad", "Pad007")
pad8.Profile = sketch13
pad8.setExpression("Length", "Params.pad8_length")
pad8.Reversed = True

doc.recompute()
